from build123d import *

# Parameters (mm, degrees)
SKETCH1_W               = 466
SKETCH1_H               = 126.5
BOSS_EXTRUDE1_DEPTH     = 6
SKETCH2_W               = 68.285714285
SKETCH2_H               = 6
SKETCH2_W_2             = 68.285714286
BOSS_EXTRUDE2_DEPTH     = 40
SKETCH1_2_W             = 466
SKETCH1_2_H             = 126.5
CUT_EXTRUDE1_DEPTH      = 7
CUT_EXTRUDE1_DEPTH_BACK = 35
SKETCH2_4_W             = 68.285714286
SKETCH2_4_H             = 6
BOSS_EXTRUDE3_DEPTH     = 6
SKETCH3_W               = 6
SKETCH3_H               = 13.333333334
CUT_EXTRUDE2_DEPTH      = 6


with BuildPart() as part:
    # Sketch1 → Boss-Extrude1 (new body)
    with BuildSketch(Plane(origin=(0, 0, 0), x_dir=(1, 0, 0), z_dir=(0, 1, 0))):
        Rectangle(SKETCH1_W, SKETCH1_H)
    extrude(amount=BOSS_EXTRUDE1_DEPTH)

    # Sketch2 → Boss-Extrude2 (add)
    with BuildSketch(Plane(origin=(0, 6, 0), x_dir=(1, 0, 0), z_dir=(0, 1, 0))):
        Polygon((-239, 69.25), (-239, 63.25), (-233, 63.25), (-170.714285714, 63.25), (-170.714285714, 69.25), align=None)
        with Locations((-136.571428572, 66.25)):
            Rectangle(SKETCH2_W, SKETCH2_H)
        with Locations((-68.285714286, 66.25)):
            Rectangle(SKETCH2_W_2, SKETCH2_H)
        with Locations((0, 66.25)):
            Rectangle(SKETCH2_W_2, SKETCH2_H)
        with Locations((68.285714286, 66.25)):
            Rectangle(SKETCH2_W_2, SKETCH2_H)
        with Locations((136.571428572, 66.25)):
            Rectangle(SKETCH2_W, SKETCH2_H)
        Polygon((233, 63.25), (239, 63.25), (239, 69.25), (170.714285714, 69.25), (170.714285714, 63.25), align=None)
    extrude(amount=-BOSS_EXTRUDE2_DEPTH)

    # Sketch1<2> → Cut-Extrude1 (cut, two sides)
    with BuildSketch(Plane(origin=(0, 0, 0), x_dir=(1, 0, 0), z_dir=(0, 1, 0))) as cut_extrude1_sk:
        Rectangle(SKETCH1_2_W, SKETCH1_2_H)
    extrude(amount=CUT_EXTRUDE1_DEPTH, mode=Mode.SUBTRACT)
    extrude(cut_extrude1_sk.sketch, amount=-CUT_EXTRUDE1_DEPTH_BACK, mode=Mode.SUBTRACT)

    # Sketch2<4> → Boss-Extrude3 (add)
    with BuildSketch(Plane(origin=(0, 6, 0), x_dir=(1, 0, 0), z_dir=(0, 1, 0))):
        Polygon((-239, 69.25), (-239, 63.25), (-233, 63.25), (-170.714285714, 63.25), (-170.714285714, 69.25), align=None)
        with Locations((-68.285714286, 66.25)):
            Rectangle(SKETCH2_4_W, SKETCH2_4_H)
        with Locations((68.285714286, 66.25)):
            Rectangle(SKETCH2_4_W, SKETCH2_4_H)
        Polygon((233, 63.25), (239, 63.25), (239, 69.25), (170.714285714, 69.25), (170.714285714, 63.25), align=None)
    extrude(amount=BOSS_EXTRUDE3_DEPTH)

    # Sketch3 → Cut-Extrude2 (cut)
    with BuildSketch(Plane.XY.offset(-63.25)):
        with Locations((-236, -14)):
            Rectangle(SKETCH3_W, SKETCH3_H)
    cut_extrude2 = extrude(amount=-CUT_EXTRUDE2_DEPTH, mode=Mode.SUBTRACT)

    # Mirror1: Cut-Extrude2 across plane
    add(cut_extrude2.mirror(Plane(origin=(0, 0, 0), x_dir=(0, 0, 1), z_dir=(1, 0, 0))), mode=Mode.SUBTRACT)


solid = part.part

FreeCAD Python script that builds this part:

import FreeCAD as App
import Part
import Sketcher
Q = App.Units.Quantity

doc = App.newDocument("Part")
body = doc.addObject("PartDesign::Body", "Body")

# Sketch on XZ plane
sketch1 = body.newObject("Sketcher::SketchObject", "Sketch")
sketch1.AttachmentSupport = (doc.getObject("XZ_Plane"), [""])
sketch1.MapMode = "FlatFace"
sketch1.addGeometry(Part.LineSegment(App.Vector(-233, -63, 0), App.Vector(-233, 63, 0)), False)
sketch1.addGeometry(Part.LineSegment(App.Vector(-233, 63, 0), App.Vector(233, 63, 0)), False)
sketch1.addGeometry(Part.LineSegment(App.Vector(233, 63, 0), App.Vector(233, -63, 0)), False)
sketch1.addGeometry(Part.LineSegment(App.Vector(233, -63, 0), App.Vector(-233, -63, 0)), False)
sketch1.addConstraint(Sketcher.Constraint("Coincident", 0, 2, 1, 1))
sketch1.addConstraint(Sketcher.Constraint("Coincident", 1, 2, 2, 1))
sketch1.addConstraint(Sketcher.Constraint("Coincident", 2, 2, 3, 1))
sketch1.addConstraint(Sketcher.Constraint("Coincident", 3, 2, 0, 1))
sketch1.addConstraint(Sketcher.Constraint("Vertical", 0))
sketch1.addConstraint(Sketcher.Constraint("Horizontal", 1))
sketch1.addConstraint(Sketcher.Constraint("Vertical", 2))
sketch1.addConstraint(Sketcher.Constraint("Horizontal", 3))
sketch1.addConstraint(Sketcher.Constraint("Symmetric", 0, 2, 2, 2, -1, 1))
sketch1.addConstraint(Sketcher.Constraint("DistanceX", 1, 1, 1, 2, Q("466 mm")))
sketch1.addConstraint(Sketcher.Constraint("DistanceY", 0, 1, 0, 2, Q("126.5 mm")))
pad1 = body.newObject("PartDesign::Pad", "Pad")
pad1.Profile = sketch1
pad1.Length = 6
pad1.Reversed = True

# Sketch on XZ plane
sketch2 = body.newObject("Sketcher::SketchObject", "Sketch001")
sketch2.AttachmentSupport = (doc.getObject("XZ_Plane"), [""])
sketch2.MapMode = "FlatFace"
sketch2.AttachmentOffset = App.Placement(App.Vector(0, 0, -6), App.Rotation())
sketch2.addGeometry(Part.LineSegment(App.Vector(-239, -69, 0), App.Vector(-239, -63, 0)), False)
sketch2.addGeometry(Part.LineSegment(App.Vector(-239, -63, 0), App.Vector(239, -63, 0)), False)
sketch2.addGeometry(Part.LineSegment(App.Vector(239, -63, 0), App.Vector(239, -69, 0)), False)
sketch2.addGeometry(Part.LineSegment(App.Vector(239, -69, 0), App.Vector(-239, -69, 0)), False)
sketch2.addConstraint(Sketcher.Constraint("Coincident", 0, 2, 1, 1))
sketch2.addConstraint(Sketcher.Constraint("Coincident", 1, 2, 2, 1))
sketch2.addConstraint(Sketcher.Constraint("Coincident", 2, 2, 3, 1))
sketch2.addConstraint(Sketcher.Constraint("Coincident", 3, 2, 0, 1))
sketch2.addConstraint(Sketcher.Constraint("Vertical", 0))
sketch2.addConstraint(Sketcher.Constraint("Horizontal", 1))
sketch2.addConstraint(Sketcher.Constraint("Vertical", 2))
sketch2.addConstraint(Sketcher.Constraint("Horizontal", 3))
sketch2.addConstraint(Sketcher.Constraint("DistanceX", 1, 1, 1, 2, Q("478 mm")))
sketch2.addConstraint(Sketcher.Constraint("DistanceY", 0, 1, 0, 2, Q("6 mm")))
sketch2.addConstraint(Sketcher.Constraint("DistanceX", 0, 2, -1, 1, Q("239 mm")))
sketch2.addConstraint(Sketcher.Constraint("DistanceY", 0, 2, -1, 1, Q("63.25 mm")))
pad2 = body.newObject("PartDesign::Pad", "Pad001")
pad2.Profile = sketch2
pad2.Length = 40

# Sketch on XZ plane
sketch3 = body.newObject("Sketcher::SketchObject", "Sketch002")
sketch3.AttachmentSupport = (doc.getObject("XZ_Plane"), [""])
sketch3.MapMode = "FlatFace"
sketch3.addGeometry(Part.LineSegment(App.Vector(-233, -63, 0), App.Vector(-233, 63, 0)), False)
sketch3.addGeometry(Part.LineSegment(App.Vector(-233, 63, 0), App.Vector(233, 63, 0)), False)
sketch3.addGeometry(Part.LineSegment(App.Vector(233, 63, 0), App.Vector(233, -63, 0)), False)
sketch3.addGeometry(Part.LineSegment(App.Vector(233, -63, 0), App.Vector(-233, -63, 0)), False)
sketch3.addConstraint(Sketcher.Constraint("Coincident", 0, 2, 1, 1))
sketch3.addConstraint(Sketcher.Constraint("Coincident", 1, 2, 2, 1))
sketch3.addConstraint(Sketcher.Constraint("Coincident", 2, 2, 3, 1))
sketch3.addConstraint(Sketcher.Constraint("Coincident", 3, 2, 0, 1))
sketch3.addConstraint(Sketcher.Constraint("Vertical", 0))
sketch3.addConstraint(Sketcher.Constraint("Horizontal", 1))
sketch3.addConstraint(Sketcher.Constraint("Vertical", 2))
sketch3.addConstraint(Sketcher.Constraint("Horizontal", 3))
sketch3.addConstraint(Sketcher.Constraint("Symmetric", 0, 2, 2, 2, -1, 1))
sketch3.addConstraint(Sketcher.Constraint("DistanceX", 1, 1, 1, 2, Q("466 mm")))
sketch3.addConstraint(Sketcher.Constraint("DistanceY", 0, 1, 0, 2, Q("126.5 mm")))
pocket1 = body.newObject("PartDesign::Pocket", "Pocket")
pocket1.Profile = sketch3
pocket1.Type = "ThroughAll"
pocket1.Midplane = True

# Sketch on XZ plane
sketch4 = body.newObject("Sketcher::SketchObject", "Sketch003")
sketch4.AttachmentSupport = (doc.getObject("XZ_Plane"), [""])
sketch4.MapMode = "FlatFace"
sketch4.AttachmentOffset = App.Placement(App.Vector(0, 0, -6), App.Rotation())
sketch4.addGeometry(Part.LineSegment(App.Vector(-239, -69, 0), App.Vector(-239, -63, 0)), False)
sketch4.addGeometry(Part.LineSegment(App.Vector(-239, -63, 0), App.Vector(-171, -63, 0)), False)
sketch4.addGeometry(Part.LineSegment(App.Vector(-171, -63, 0), App.Vector(-171, -69, 0)), False)
sketch4.addGeometry(Part.LineSegment(App.Vector(-171, -69, 0), App.Vector(-239, -69, 0)), False)
sketch4.addGeometry(Part.LineSegment(App.Vector(-102, -69, 0), App.Vector(-102, -63, 0)), False)
sketch4.addGeometry(Part.LineSegment(App.Vector(-102, -63, 0), App.Vector(-34, -63, 0)), False)
sketch4.addGeometry(Part.LineSegment(App.Vector(-34, -63, 0), App.Vector(-34, -69, 0)), False)
sketch4.addGeometry(Part.LineSegment(App.Vector(-34, -69, 0), App.Vector(-102, -69, 0)), False)
sketch4.addGeometry(Part.LineSegment(App.Vector(34, -69, 0), App.Vector(34, -63, 0)), False)
sketch4.addGeometry(Part.LineSegment(App.Vector(34, -63, 0), App.Vector(102, -63, 0)), False)
sketch4.addGeometry(Part.LineSegment(App.Vector(102, -63, 0), App.Vector(102, -69, 0)), False)
sketch4.addGeometry(Part.LineSegment(App.Vector(102, -69, 0), App.Vector(34, -69, 0)), False)
sketch4.addGeometry(Part.LineSegment(App.Vector(239, -63, 0), App.Vector(239, -69, 0)), False)
sketch4.addGeometry(Part.LineSegment(App.Vector(239, -69, 0), App.Vector(171, -69, 0)), False)
sketch4.addGeometry(Part.LineSegment(App.Vector(171, -69, 0), App.Vector(171, -63, 0)), False)
sketch4.addGeometry(Part.LineSegment(App.Vector(171, -63, 0), App.Vector(239, -63, 0)), False)
sketch4.addConstraint(Sketcher.Constraint("Coincident", 0, 2, 1, 1))
sketch4.addConstraint(Sketcher.Constraint("Coincident", 1, 2, 2, 1))
sketch4.addConstraint(Sketcher.Constraint("Coincident", 2, 2, 3, 1))
sketch4.addConstraint(Sketcher.Constraint("Coincident", 3, 2, 0, 1))
sketch4.addConstraint(Sketcher.Constraint("Coincident", 4, 2, 5, 1))
sketch4.addConstraint(Sketcher.Constraint("Coincident", 5, 2, 6, 1))
sketch4.addConstraint(Sketcher.Constraint("Coincident", 6, 2, 7, 1))
sketch4.addConstraint(Sketcher.Constraint("Coincident", 7, 2, 4, 1))
sketch4.addConstraint(Sketcher.Constraint("Coincident", 8, 2, 9, 1))
sketch4.addConstraint(Sketcher.Constraint("Coincident", 9, 2, 10, 1))
sketch4.addConstraint(Sketcher.Constraint("Coincident", 10, 2, 11, 1))
sketch4.addConstraint(Sketcher.Constraint("Coincident", 11, 2, 8, 1))
sketch4.addConstraint(Sketcher.Constraint("Coincident", 12, 2, 13, 1))
sketch4.addConstraint(Sketcher.Constraint("Coincident", 13, 2, 14, 1))
sketch4.addConstraint(Sketcher.Constraint("Coincident", 14, 2, 15, 1))
sketch4.addConstraint(Sketcher.Constraint("Coincident", 15, 2, 12, 1))
sketch4.addConstraint(Sketcher.Constraint("Vertical", 0))
sketch4.addConstraint(Sketcher.Constraint("Horizontal", 1))
sketch4.addConstraint(Sketcher.Constraint("Vertical", 2))
sketch4.addConstraint(Sketcher.Constraint("Horizontal", 3))
sketch4.addConstraint(Sketcher.Constraint("Vertical", 4))
sketch4.addConstraint(Sketcher.Constraint("Horizontal", 5))
sketch4.addConstraint(Sketcher.Constraint("Vertical", 6))
sketch4.addConstraint(Sketcher.Constraint("Horizontal", 7))
sketch4.addConstraint(Sketcher.Constraint("Vertical", 8))
sketch4.addConstraint(Sketcher.Constraint("Horizontal", 9))
sketch4.addConstraint(Sketcher.Constraint("Vertical", 10))
sketch4.addConstraint(Sketcher.Constraint("Horizontal", 11))
sketch4.addConstraint(Sketcher.Constraint("Vertical", 12))
sketch4.addConstraint(Sketcher.Constraint("Horizontal", 13))
sketch4.addConstraint(Sketcher.Constraint("Vertical", 14))
sketch4.addConstraint(Sketcher.Constraint("Horizontal", 15))
sketch4.addConstraint(Sketcher.Constraint("Symmetric", 5, 2, 8, 2, -2))
sketch4.addConstraint(Sketcher.Constraint("Symmetric", 7, 2, 10, 2, -2))
sketch4.addConstraint(Sketcher.Constraint("Symmetric", 3, 2, 12, 2, -2))
sketch4.addConstraint(Sketcher.Constraint("Symmetric", 1, 2, 14, 2, -2))
sketch4.addConstraint(Sketcher.Constraint("Horizontal", 1, 2, 4, 2))
sketch4.addConstraint(Sketcher.Constraint("Horizontal", 3, 2, 6, 2))
sketch4.addConstraint(Sketcher.Constraint("Equal", 3, 5))
sketch4.addConstraint(Sketcher.Constraint("DistanceY", 0, 1, 0, 2, Q("6 mm")))
sketch4.addConstraint(Sketcher.Constraint("DistanceX", 0, 2, -1, 1, Q("239 mm")))
sketch4.addConstraint(Sketcher.Constraint("DistanceY", 0, 2, -1, 1, Q("63.25 mm")))
sketch4.addConstraint(Sketcher.Constraint("DistanceX", 1, 1, 1, 2, Q("68.285714 mm")))
sketch4.addConstraint(Sketcher.Constraint("DistanceX", 4, 2, -1, 1, Q("102.428571 mm")))
pad3 = body.newObject("PartDesign::Pad", "Pad002")
pad3.Profile = sketch4
pad3.Length = 6
pad3.Reversed = True

# Sketch on XY plane
sketch5 = body.newObject("Sketcher::SketchObject", "Sketch004")
sketch5.AttachmentSupport = (doc.getObject("XY_Plane"), [""])
sketch5.MapMode = "FlatFace"
sketch5.AttachmentOffset = App.Placement(App.Vector(0, 0, -63.25), App.Rotation())
sketch5.addGeometry(Part.LineSegment(App.Vector(-239, -7, 0), App.Vector(-239, -21, 0)), False)
sketch5.addGeometry(Part.LineSegment(App.Vector(-239, -21, 0), App.Vector(-233, -21, 0)), False)
sketch5.addGeometry(Part.LineSegment(App.Vector(-233, -21, 0), App.Vector(-233, -7, 0)), False)
sketch5.addGeometry(Part.LineSegment(App.Vector(-233, -7, 0), App.Vector(-239, -7, 0)), False)
sketch5.addConstraint(Sketcher.Constraint("Coincident", 0, 2, 1, 1))
sketch5.addConstraint(Sketcher.Constraint("Coincident", 1, 2, 2, 1))
sketch5.addConstraint(Sketcher.Constraint("Coincident", 2, 2, 3, 1))
sketch5.addConstraint(Sketcher.Constraint("Coincident", 3, 2, 0, 1))
sketch5.addConstraint(Sketcher.Constraint("Vertical", 0))
sketch5.addConstraint(Sketcher.Constraint("Horizontal", 1))
sketch5.addConstraint(Sketcher.Constraint("Vertical", 2))
sketch5.addConstraint(Sketcher.Constraint("Horizontal", 3))
sketch5.addConstraint(Sketcher.Constraint("DistanceX", 1, 1, 1, 2, Q("6 mm")))
sketch5.addConstraint(Sketcher.Constraint("DistanceX", 0, 2, -1, 1, Q("239 mm")))
sketch5.addConstraint(Sketcher.Constraint("DistanceY", 0, 2, 0, 1, Q("13.333333 mm")))
sketch5.addConstraint(Sketcher.Constraint("DistanceY", 0, 2, -1, 1, Q("20.666667 mm")))
pocket2 = body.newObject("PartDesign::Pocket", "Pocket001")
pocket2.Profile = sketch5
pocket2.Length = 6
doc.recompute()

mirrored = body.newObject("PartDesign::Mirrored", "Mirrored")
mirrored.Originals = [pocket2]
mirrored.MirrorPlane = (doc.getObject("YZ_Plane"), [""])
body.Tip = mirrored

doc.recompute()
